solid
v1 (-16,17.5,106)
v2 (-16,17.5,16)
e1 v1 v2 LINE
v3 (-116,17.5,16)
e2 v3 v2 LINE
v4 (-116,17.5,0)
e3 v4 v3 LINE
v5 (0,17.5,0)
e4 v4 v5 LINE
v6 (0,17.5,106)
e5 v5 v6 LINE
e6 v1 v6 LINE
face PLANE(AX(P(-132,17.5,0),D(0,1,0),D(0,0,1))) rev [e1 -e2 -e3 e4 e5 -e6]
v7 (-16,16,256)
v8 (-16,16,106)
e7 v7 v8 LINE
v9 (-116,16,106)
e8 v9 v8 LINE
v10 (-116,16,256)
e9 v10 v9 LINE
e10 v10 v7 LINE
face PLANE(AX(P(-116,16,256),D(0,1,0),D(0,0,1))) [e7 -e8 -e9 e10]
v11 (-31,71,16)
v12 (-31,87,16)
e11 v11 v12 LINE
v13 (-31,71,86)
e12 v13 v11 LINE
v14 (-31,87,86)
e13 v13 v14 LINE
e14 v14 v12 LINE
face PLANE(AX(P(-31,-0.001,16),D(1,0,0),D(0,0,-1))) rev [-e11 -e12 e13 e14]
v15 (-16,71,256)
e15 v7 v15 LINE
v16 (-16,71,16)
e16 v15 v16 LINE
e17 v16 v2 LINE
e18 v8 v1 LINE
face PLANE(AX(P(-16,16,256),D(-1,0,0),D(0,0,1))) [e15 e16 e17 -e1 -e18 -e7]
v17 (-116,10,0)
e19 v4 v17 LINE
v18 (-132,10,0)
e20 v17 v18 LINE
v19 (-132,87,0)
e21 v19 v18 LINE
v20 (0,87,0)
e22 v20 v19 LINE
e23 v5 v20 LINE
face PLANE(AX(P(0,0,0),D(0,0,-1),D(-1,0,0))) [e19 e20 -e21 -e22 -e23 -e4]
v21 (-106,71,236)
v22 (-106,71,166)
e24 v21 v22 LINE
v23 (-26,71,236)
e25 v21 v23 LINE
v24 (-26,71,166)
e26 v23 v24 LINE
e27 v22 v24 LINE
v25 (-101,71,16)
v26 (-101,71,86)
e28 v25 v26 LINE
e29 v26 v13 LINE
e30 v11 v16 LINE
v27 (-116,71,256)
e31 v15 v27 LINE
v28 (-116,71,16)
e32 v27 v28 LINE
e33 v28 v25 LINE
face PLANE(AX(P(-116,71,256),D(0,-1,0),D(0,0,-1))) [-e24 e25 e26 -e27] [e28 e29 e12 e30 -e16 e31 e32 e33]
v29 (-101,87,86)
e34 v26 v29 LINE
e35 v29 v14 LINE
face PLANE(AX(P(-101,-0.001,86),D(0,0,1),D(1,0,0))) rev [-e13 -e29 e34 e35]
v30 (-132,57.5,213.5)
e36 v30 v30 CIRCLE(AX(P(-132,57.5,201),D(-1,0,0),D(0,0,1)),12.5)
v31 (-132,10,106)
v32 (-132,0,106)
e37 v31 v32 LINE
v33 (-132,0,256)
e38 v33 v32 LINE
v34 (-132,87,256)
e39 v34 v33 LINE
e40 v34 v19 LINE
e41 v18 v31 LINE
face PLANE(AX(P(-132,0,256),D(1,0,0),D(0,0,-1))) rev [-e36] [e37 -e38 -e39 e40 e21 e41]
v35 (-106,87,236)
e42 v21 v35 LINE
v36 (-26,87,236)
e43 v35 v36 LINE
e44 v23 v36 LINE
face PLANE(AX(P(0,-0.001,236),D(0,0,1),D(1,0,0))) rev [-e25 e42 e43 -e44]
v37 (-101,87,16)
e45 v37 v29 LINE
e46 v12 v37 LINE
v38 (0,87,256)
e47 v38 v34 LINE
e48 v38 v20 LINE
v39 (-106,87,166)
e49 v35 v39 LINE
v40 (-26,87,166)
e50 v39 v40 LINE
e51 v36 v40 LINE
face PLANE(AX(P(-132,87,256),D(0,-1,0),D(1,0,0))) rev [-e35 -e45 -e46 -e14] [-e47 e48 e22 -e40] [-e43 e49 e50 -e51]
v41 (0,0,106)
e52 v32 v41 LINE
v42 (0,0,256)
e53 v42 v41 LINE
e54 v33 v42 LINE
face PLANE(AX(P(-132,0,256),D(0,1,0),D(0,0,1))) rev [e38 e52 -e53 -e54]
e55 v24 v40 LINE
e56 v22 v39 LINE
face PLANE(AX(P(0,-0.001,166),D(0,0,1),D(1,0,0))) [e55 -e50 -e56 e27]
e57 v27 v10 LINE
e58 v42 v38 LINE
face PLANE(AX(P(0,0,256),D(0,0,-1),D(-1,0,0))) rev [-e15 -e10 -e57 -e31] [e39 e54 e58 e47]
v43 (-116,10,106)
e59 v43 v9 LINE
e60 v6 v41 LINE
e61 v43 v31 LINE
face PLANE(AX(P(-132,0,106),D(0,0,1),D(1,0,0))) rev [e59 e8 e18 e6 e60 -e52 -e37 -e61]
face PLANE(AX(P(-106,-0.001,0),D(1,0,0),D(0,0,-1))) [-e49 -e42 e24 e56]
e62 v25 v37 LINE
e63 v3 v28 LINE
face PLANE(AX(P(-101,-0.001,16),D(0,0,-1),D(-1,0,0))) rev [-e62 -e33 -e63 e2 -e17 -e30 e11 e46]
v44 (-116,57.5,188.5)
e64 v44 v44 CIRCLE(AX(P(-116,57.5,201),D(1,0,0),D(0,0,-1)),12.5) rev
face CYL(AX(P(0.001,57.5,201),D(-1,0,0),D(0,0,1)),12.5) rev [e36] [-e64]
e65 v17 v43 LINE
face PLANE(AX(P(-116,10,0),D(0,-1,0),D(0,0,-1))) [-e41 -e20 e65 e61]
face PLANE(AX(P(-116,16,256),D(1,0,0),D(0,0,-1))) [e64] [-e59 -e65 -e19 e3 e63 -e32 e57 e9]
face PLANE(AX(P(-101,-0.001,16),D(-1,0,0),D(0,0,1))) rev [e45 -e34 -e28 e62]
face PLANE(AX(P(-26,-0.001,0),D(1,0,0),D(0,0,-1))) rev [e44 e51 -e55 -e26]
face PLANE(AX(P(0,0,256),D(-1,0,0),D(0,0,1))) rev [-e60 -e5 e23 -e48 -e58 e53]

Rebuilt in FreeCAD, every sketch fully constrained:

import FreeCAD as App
import Part
import Sketcher


def add_polygon(sketch, points):
    """Adds a closed chain of lines whose ends are joined by coincident constraints."""
    first, n = sketch.GeometryCount, len(points)
    for a, b in zip(points, points[1:] + points[:1]):
        sketch.addGeometry(Part.LineSegment(App.Vector(*a, 0), App.Vector(*b, 0)), False)
    for i in range(n):
        sketch.addConstraint(Sketcher.Constraint("Coincident", first + i, 2, first + (i + 1) % n, 1))

doc = App.newDocument("Part")
params = doc.addObject("Spreadsheet::Sheet", "Params")
for row, (alias, value) in enumerate([
    ("sketch1_width", "132 mm"),
    ("sketch1_width2", "100 mm"),
    ("sketch1_height", "87 mm"),
    ("sketch1_height2", "55 mm"),
    ("pad1_length", "256 mm"),
    ("sketch2_width", "80 mm"),
    ("sketch2_height", "70 mm"),
    ("sketch3_width", "70 mm"),
    ("sketch4_width", "100 mm"),
    ("sketch4_height", "55 mm"),
    ("pad2_length", "16 mm"),
    ("sketch5_height", "106 mm"),
    ("sketch5_width", "17.5 mm"),
    ("sketch6_height", "106 mm"),
    ("sketch6_width", "7.5 mm"),
    ("pad3_length", "16 mm"),
    ("sketch7_diameter", "25 mm"),
], start=1):
    params.set(f"A{row}", alias)
    params.set(f"B{row}", "=" + value)
    params.setAlias(f"B{row}", alias)

body = doc.addObject("PartDesign::Body", "Body")

sketch1 = doc.addObject("Sketcher::SketchObject", "Sketch")
body.addObject(sketch1)
sketch1.AttachmentSupport = (doc.XY_Plane, [""])
sketch1.MapMode = "FlatFace"
add_polygon(sketch1, [(-132, 87), (-132, 0), (0, 0), (0, 87)])
add_polygon(sketch1, [(-16, 16), (-116, 16), (-116, 71), (-16, 71)])
sketch1.addConstraint([
    Sketcher.Constraint("Vertical", 0),
    Sketcher.Constraint("Horizontal", 1),
    Sketcher.Constraint("Vertical", 2),
    Sketcher.Constraint("Horizontal", 3),
    Sketcher.Constraint("Horizontal", 4),
    Sketcher.Constraint("Vertical", 5),
    Sketcher.Constraint("Horizontal", 6),
    Sketcher.Constraint("Vertical", 7),
    Sketcher.Constraint("Coincident", 1, 2, -1, 1),
    Sketcher.Constraint("DistanceX", 1, 1, 1, 2, 132.0),
    Sketcher.Constraint("DistanceX", 4, 2, 4, 1, 100.0),
    Sketcher.Constraint("DistanceY", 0, 2, 0, 1, 87.0),
    Sketcher.Constraint("DistanceY", 5, 1, 5, 2, 55.0),
    Sketcher.Constraint("DistanceX", 4, 2, -1, 1, 116.0),
    Sketcher.Constraint("DistanceY", -1, 1, 4, 2, 16.0),
])
sketch1.setExpression("Constraints[17]", "Params.sketch1_width")
sketch1.setExpression("Constraints[18]", "Params.sketch1_width2")
sketch1.setExpression("Constraints[19]", "Params.sketch1_height")
sketch1.setExpression("Constraints[20]", "Params.sketch1_height2")
pad1 = doc.addObject("PartDesign::Pad", "Pad")
body.addObject(pad1)
pad1.Profile = sketch1
pad1.setExpression("Length", "Params.pad1_length")

sketch2 = doc.addObject("Sketcher::SketchObject", "Sketch001")
body.addObject(sketch2)
sketch2.AttachmentSupport = (doc.XZ_Plane, [""])
sketch2.MapMode = "FlatFace"
sketch2.AttachmentOffset = App.Placement(App.Vector(0, 0, -87), App.Rotation())
add_polygon(sketch2, [(-106, 166), (-106, 236), (-26, 236), (-26, 166)])
sketch2.addConstraint([
    Sketcher.Constraint("Vertical", 0),
    Sketcher.Constraint("Horizontal", 1),
    Sketcher.Constraint("Vertical", 2),
    Sketcher.Constraint("Horizontal", 3),
    Sketcher.Constraint("DistanceX", 1, 1, 1, 2, 80.0),
    Sketcher.Constraint("DistanceY", 0, 1, 0, 2, 70.0),
    Sketcher.Constraint("DistanceX", 0, 2, -1, 1, 106.0),
    Sketcher.Constraint("DistanceY", -1, 1, 0, 2, 236.0),
])
sketch2.setExpression("Constraints[8]", "Params.sketch2_width")
sketch2.setExpression("Constraints[9]", "Params.sketch2_height")
pocket1 = doc.addObject("PartDesign::Pocket", "Pocket")
body.addObject(pocket1)
pocket1.Profile = sketch2
pocket1.Type = "UpToFirst"
pocket1.Reversed = True

sketch3 = doc.addObject("Sketcher::SketchObject", "Sketch002")
body.addObject(sketch3)
sketch3.AttachmentSupport = (doc.XZ_Plane, [""])
sketch3.MapMode = "FlatFace"
sketch3.AttachmentOffset = App.Placement(App.Vector(0, 0, -87), App.Rotation())
add_polygon(sketch3, [(-101, 16), (-101, 86), (-31, 86), (-31, 16)])
sketch3.addConstraint([
    Sketcher.Constraint("Vertical", 0),
    Sketcher.Constraint("Horizontal", 1),
    Sketcher.Constraint("Vertical", 2),
    Sketcher.Constraint("Horizontal", 3),
    Sketcher.Constraint("Equal", 3, 0),
    Sketcher.Constraint("DistanceX", 1, 1, 1, 2, 70.0),
    Sketcher.Constraint("DistanceX", 0, 2, -1, 1, 101.0),
    Sketcher.Constraint("DistanceY", -1, 1, 0, 2, 86.0),
])
sketch3.setExpression("Constraints[9]", "Params.sketch3_width")
pocket2 = doc.addObject("PartDesign::Pocket", "Pocket001")
body.addObject(pocket2)
pocket2.Profile = sketch3
pocket2.Type = "UpToFirst"
pocket2.Reversed = True

sketch4 = doc.addObject("Sketcher::SketchObject", "Sketch003")
body.addObject(sketch4)
sketch4.AttachmentSupport = (doc.XY_Plane, [""])
sketch4.MapMode = "FlatFace"
add_polygon(sketch4, [(-16, 71), (-16, 16), (-116, 16), (-116, 71)])
sketch4.addConstraint([
    Sketcher.Constraint("Vertical", 0),
    Sketcher.Constraint("Horizontal", 1),
    Sketcher.Constraint("Vertical", 2),
    Sketcher.Constraint("Horizontal", 3),
    Sketcher.Constraint("DistanceX", 1, 2, 1, 1, 100.0),
    Sketcher.Constraint("DistanceY", 0, 2, 0, 1, 55.0),
    Sketcher.Constraint("DistanceX", 0, 2, -1, 1, 16.0),
    Sketcher.Constraint("DistanceY", -1, 1, 0, 2, 16.0),
])
sketch4.setExpression("Constraints[8]", "Params.sketch4_width")
sketch4.setExpression("Constraints[9]", "Params.sketch4_height")
pad2 = doc.addObject("PartDesign::Pad", "Pad001")
body.addObject(pad2)
pad2.Profile = sketch4
pad2.setExpression("Length", "Params.pad2_length")

sketch5 = doc.addObject("Sketcher::SketchObject", "Sketch004")
body.addObject(sketch5)
sketch5.AttachmentSupport = (doc.YZ_Plane, [""])
sketch5.MapMode = "FlatFace"
add_polygon(sketch5, [(18, 106), (0, 106), (0, 0), (18, 0)])
sketch5.addConstraint([
    Sketcher.Constraint("Horizontal", 0),
    Sketcher.Constraint("Vertical", 1),
    Sketcher.Constraint("Horizontal", 2),
    Sketcher.Constraint("Vertical", 3),
    Sketcher.Constraint("Coincident", 1, 2, -1, 1),
    Sketcher.Constraint("DistanceY", 1, 2, 1, 1, 106.0),
    Sketcher.Constraint("DistanceX", 0, 2, 0, 1, 17.5),
])
sketch5.setExpression("Constraints[9]", "Params.sketch5_height")
sketch5.setExpression("Constraints[10]", "Params.sketch5_width")
pocket3 = doc.addObject("PartDesign::Pocket", "Pocket002")
body.addObject(pocket3)
pocket3.Profile = sketch5
pocket3.Type = "ThroughAll"

sketch6 = doc.addObject("Sketcher::SketchObject", "Sketch005")
body.addObject(sketch6)
sketch6.AttachmentSupport = (doc.YZ_Plane, [""])
sketch6.MapMode = "FlatFace"
sketch6.AttachmentOffset = App.Placement(App.Vector(0, 0, -132), App.Rotation())
add_polygon(sketch6, [(18, 0), (10, 0), (10, 106), (18, 106)])
sketch6.addConstraint([
    Sketcher.Constraint("Horizontal", 0),
    Sketcher.Constraint("Vertical", 1),
    Sketcher.Constraint("Horizontal", 2),
    Sketcher.Constraint("Vertical", 3),
    Sketcher.Constraint("PointOnObject", 0, 2, -1),
    Sketcher.Constraint("DistanceY", 1, 1, 1, 2, 106.0),
    Sketcher.Constraint("DistanceX", 0, 2, 0, 1, 7.5),
    Sketcher.Constraint("DistanceX", -1, 1, 0, 2, 10.0),
])
sketch6.setExpression("Constraints[9]", "Params.sketch6_height")
sketch6.setExpression("Constraints[10]", "Params.sketch6_width")
pad3 = doc.addObject("PartDesign::Pad", "Pad002")
body.addObject(pad3)
pad3.Profile = sketch6
pad3.setExpression("Length", "Params.pad3_length")

sketch7 = doc.addObject("Sketcher::SketchObject", "Sketch006")
body.addObject(sketch7)
sketch7.AttachmentSupport = (doc.YZ_Plane, [""])
sketch7.MapMode = "FlatFace"
sketch7.AttachmentOffset = App.Placement(App.Vector(0, 0, -132), App.Rotation())
sketch7.addGeometry(Part.Circle(App.Vector(58, 201, 0), App.Vector(0, 0, 1), 12), False)
sketch7.addConstraint([
    Sketcher.Constraint("Diameter", 0, 25.0),
    Sketcher.Constraint("DistanceY", -1, 1, 0, 3, 201.0),
    Sketcher.Constraint("DistanceX", -1, 1, 0, 3, 57.5),
])
sketch7.setExpression("Constraints[0]", "Params.sketch7_diameter")
pocket4 = doc.addObject("PartDesign::Pocket", "Pocket003")
body.addObject(pocket4)
pocket4.Profile = sketch7
pocket4.Type = "UpToFirst"
pocket4.Reversed = True

doc.recompute()
